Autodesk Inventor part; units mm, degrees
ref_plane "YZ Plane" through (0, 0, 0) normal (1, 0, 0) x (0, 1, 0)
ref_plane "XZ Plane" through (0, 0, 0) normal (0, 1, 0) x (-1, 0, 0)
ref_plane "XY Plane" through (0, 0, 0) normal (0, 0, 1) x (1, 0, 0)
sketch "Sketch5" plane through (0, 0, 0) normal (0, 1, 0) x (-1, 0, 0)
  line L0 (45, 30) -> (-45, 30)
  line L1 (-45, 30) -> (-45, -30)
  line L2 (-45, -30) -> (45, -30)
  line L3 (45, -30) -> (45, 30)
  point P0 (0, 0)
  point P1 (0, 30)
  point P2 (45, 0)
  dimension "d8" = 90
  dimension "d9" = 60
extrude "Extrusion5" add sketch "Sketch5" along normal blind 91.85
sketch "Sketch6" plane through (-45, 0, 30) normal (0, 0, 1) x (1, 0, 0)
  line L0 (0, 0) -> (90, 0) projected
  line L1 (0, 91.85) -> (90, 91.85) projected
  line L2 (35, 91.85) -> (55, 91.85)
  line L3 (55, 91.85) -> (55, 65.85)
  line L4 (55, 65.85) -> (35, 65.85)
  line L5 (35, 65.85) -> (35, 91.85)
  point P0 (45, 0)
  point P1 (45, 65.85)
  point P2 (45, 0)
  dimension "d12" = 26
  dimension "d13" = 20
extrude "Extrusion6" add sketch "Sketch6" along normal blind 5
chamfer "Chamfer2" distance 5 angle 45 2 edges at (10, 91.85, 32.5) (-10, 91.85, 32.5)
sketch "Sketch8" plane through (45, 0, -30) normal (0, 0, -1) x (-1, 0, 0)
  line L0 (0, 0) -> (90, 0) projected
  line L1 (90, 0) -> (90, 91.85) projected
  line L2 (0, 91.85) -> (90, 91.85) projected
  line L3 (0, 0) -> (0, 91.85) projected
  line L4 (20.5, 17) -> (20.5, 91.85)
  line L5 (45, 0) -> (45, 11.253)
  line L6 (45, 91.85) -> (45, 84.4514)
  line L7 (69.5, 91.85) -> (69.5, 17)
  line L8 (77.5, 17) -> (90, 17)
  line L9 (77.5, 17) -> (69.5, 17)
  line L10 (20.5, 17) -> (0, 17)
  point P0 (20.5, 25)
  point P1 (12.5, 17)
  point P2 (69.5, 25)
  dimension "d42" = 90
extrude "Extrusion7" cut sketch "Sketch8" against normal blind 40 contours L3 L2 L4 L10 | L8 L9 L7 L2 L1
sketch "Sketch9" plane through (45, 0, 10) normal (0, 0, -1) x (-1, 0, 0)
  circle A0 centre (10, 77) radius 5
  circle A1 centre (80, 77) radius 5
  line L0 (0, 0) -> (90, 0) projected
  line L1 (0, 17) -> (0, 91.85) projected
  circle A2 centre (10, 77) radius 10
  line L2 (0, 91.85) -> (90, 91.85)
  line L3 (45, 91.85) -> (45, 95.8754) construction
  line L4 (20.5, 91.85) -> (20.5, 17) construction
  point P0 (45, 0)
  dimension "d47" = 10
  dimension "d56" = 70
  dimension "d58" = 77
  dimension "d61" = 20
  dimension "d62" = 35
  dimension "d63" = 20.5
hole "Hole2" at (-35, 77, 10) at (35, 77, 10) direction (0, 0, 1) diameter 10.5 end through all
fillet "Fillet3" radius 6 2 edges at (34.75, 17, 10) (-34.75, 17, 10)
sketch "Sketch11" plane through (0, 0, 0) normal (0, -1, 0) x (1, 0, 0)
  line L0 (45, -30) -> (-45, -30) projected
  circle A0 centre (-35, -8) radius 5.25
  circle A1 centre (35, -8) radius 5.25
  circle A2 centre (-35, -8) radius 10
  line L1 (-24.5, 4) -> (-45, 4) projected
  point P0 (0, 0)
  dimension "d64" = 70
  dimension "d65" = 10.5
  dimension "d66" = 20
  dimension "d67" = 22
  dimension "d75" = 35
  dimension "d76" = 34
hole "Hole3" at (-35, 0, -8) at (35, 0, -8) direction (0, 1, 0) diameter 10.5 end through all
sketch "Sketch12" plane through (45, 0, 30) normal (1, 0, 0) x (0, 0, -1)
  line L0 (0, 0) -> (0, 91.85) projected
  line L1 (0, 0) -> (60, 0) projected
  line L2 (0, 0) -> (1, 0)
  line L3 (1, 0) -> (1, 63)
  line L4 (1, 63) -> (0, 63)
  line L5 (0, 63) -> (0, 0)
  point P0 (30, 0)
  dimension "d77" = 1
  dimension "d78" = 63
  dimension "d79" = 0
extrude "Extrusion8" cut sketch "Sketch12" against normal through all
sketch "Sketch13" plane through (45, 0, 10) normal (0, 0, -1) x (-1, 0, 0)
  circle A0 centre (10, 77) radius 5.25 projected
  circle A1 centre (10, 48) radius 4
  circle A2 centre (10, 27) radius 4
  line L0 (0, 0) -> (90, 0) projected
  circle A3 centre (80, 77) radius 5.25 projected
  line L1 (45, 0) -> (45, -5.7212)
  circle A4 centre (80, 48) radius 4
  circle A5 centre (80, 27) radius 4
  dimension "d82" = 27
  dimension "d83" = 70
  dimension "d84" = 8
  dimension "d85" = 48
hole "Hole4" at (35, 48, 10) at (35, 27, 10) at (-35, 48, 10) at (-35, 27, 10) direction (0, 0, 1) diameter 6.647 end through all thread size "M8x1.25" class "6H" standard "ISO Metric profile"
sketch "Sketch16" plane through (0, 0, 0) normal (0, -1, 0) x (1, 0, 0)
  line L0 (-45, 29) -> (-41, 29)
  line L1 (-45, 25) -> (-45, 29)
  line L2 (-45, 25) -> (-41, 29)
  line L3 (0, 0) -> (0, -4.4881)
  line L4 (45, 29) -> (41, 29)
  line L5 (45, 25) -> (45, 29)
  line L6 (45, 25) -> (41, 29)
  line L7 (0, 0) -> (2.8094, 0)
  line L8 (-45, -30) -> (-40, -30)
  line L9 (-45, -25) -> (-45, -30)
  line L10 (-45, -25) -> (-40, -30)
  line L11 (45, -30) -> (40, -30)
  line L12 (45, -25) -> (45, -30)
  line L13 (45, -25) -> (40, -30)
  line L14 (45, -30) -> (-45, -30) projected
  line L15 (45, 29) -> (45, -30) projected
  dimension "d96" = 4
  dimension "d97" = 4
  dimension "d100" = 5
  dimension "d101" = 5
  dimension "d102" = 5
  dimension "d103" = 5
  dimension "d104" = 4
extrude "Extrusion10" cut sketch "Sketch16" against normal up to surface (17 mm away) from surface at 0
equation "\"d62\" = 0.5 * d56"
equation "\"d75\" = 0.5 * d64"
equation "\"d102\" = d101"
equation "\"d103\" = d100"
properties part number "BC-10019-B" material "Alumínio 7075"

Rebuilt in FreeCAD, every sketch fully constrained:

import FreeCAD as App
import Part
import Sketcher
from FreeCAD import Vector
Q = App.Units.Quantity


def edges_at(feature, points):
    """Names of the edges that pass closest to the given points."""
    edges = feature.Shape.Edges
    near = lambda p: min(range(len(edges)), key=lambda i: edges[i].distToShape(Part.Vertex(*p))[0])
    return sorted({f"Edge{near(p) + 1}" for p in points})

doc = App.newDocument("Part")
body = doc.addObject("PartDesign::Body", "Body")

# Sketch on XZ plane
sketch1 = body.newObject("Sketcher::SketchObject", "Sketch")
sketch1.AttachmentSupport = (doc.getObject("XZ_Plane"), [""])
sketch1.MapMode = "FlatFace"
sketch1.addGeometry([
    Part.LineSegment(Vector(-45, -30, 0), Vector(-45, 30, 0)),
    Part.LineSegment(Vector(-45, 30, 0), Vector(45, 30, 0)),
    Part.LineSegment(Vector(45, 30, 0), Vector(45, -30, 0)),
    Part.LineSegment(Vector(45, -30, 0), Vector(-45, -30, 0)),
], False)
sketch1.addConstraint([
    Sketcher.Constraint("Coincident", 0, 2, 1, 1),
    Sketcher.Constraint("Coincident", 1, 2, 2, 1),
    Sketcher.Constraint("Coincident", 2, 2, 3, 1),
    Sketcher.Constraint("Coincident", 3, 2, 0, 1),
    Sketcher.Constraint("Vertical", 0),
    Sketcher.Constraint("Horizontal", 1),
    Sketcher.Constraint("Vertical", 2),
    Sketcher.Constraint("Horizontal", 3),
    Sketcher.Constraint("Symmetric", 0, 2, 2, 2, -1, 1),
    Sketcher.Constraint("DistanceX", 1, 1, 1, 2, Q("90 mm")),
    Sketcher.Constraint("DistanceY", 0, 1, 0, 2, Q("60 mm")),
])
pad1 = body.newObject("PartDesign::Pad", "Pad")
pad1.Profile = sketch1
pad1.Length = 91.85
pad1.Reversed = True

# Sketch on XY plane
sketch2 = body.newObject("Sketcher::SketchObject", "Sketch001")
sketch2.AttachmentSupport = (doc.getObject("XY_Plane"), [""])
sketch2.MapMode = "FlatFace"
sketch2.AttachmentOffset = App.Placement(Vector(0, 0, 30), App.Rotation())
sketch2.addGeometry([
    Part.LineSegment(Vector(10, 92, 0), Vector(-10, 92, 0)),
    Part.LineSegment(Vector(-10, 92, 0), Vector(-10, 66, 0)),
    Part.LineSegment(Vector(-10, 66, 0), Vector(10, 66, 0)),
    Part.LineSegment(Vector(10, 66, 0), Vector(10, 92, 0)),
], False)
sketch2.addConstraint([
    Sketcher.Constraint("Coincident", 0, 2, 1, 1),
    Sketcher.Constraint("Coincident", 1, 2, 2, 1),
    Sketcher.Constraint("Coincident", 2, 2, 3, 1),
    Sketcher.Constraint("Coincident", 3, 2, 0, 1),
    Sketcher.Constraint("Horizontal", 0),
    Sketcher.Constraint("Vertical", 1),
    Sketcher.Constraint("Horizontal", 2),
    Sketcher.Constraint("Vertical", 3),
    Sketcher.Constraint("DistanceX", 0, 2, 0, 1, Q("20 mm")),
    Sketcher.Constraint("DistanceY", 1, 2, 1, 1, Q("26 mm")),
    Sketcher.Constraint("DistanceX", 0, 2, -1, 1, Q("10 mm")),
    Sketcher.Constraint("DistanceY", -1, 1, 0, 2, Q("91.85 mm")),
])
pad2 = body.newObject("PartDesign::Pad", "Pad001")
pad2.Profile = sketch2
pad2.Length = 5
doc.recompute()

chamfer = body.newObject("PartDesign::Chamfer", "Chamfer")
chamfer.Base = (pad2, edges_at(pad2, [(10, 91.85, 32.5), (-10, 91.85, 32.5)]))
chamfer.Size = 5

# Sketch on XY plane
sketch3 = body.newObject("Sketcher::SketchObject", "Sketch002")
sketch3.AttachmentSupport = (doc.getObject("XY_Plane"), [""])
sketch3.MapMode = "FlatFace"
sketch3.AttachmentOffset = App.Placement(Vector(0, 0, -30), App.Rotation())
sketch3.addGeometry([
    Part.LineSegment(Vector(45, 92, 0), Vector(45, 17, 0)),  # 0
    Part.LineSegment(Vector(45, 17, 0), Vector(24, 17, 0)),  # 1
    Part.LineSegment(Vector(24, 17, 0), Vector(24, 92, 0)),  # 2
    Part.LineSegment(Vector(24, 92, 0), Vector(45, 92, 0)),  # 3
    Part.LineSegment(Vector(-24, 17, 0), Vector(-45, 17, 0)),  # 4
    Part.LineSegment(Vector(-45, 17, 0), Vector(-45, 92, 0)),  # 5
    Part.LineSegment(Vector(-45, 92, 0), Vector(-24, 92, 0)),  # 6
    Part.LineSegment(Vector(-24, 92, 0), Vector(-24, 17, 0)),  # 7
], False)
sketch3.addConstraint([
    Sketcher.Constraint("Coincident", 0, 2, 1, 1),
    Sketcher.Constraint("Coincident", 1, 2, 2, 1),
    Sketcher.Constraint("Coincident", 2, 2, 3, 1),
    Sketcher.Constraint("Coincident", 3, 2, 0, 1),
    Sketcher.Constraint("Coincident", 4, 2, 5, 1),
    Sketcher.Constraint("Coincident", 5, 2, 6, 1),
    Sketcher.Constraint("Coincident", 6, 2, 7, 1),
    Sketcher.Constraint("Coincident", 7, 2, 4, 1),
    Sketcher.Constraint("Vertical", 0),
    Sketcher.Constraint("Horizontal", 1),
    Sketcher.Constraint("Vertical", 2),
    Sketcher.Constraint("Horizontal", 3),
    Sketcher.Constraint("Horizontal", 4),
    Sketcher.Constraint("Vertical", 5),
    Sketcher.Constraint("Horizontal", 6),
    Sketcher.Constraint("Vertical", 7),
    Sketcher.Constraint("Symmetric", 0, 2, 4, 2, -2),
    Sketcher.Constraint("Symmetric", 2, 2, 6, 2, -2),
    Sketcher.Constraint("DistanceX", 4, 2, 0, 2, Q("90 mm")),
    Sketcher.Constraint("DistanceX", 1, 2, 1, 1, Q("20.5 mm")),
    Sketcher.Constraint("DistanceY", -1, 1, 0, 2, Q("17 mm")),
    Sketcher.Constraint("DistanceY", 0, 2, 0, 1, Q("74.85 mm")),
])
pocket1 = body.newObject("PartDesign::Pocket", "Pocket")
pocket1.Profile = sketch3
pocket1.Length = 40
pocket1.Reversed = True

# Sketch on XY plane
sketch4 = body.newObject("Sketcher::SketchObject", "Sketch003")
sketch4.AttachmentSupport = (doc.getObject("XY_Plane"), [""])
sketch4.MapMode = "FlatFace"
sketch4.AttachmentOffset = App.Placement(Vector(0, 0, 10), App.Rotation())
sketch4.addGeometry([
    Part.Circle(Vector(-35, 77, 0), Vector(0, 0, 1), 5),
    Part.Circle(Vector(35, 77, 0), Vector(0, 0, 1), 5),
], False)
sketch4.addConstraint([
    Sketcher.Constraint("Equal", 0, 1),
    Sketcher.Constraint("Symmetric", 0, 3, 1, 3, -2),
    Sketcher.Constraint("Diameter", 0, Q("10.5 mm")),
    Sketcher.Constraint("DistanceX", 0, 3, -1, 1, Q("35 mm")),
    Sketcher.Constraint("DistanceY", -1, 1, 0, 3, Q("77 mm")),
])
doc.recompute()
hole = body.newObject("PartDesign::Hole", "Hole")
hole.Profile = sketch4
hole.ThreadType = "None"
hole.Diameter = 10.5
hole.DepthType = "ThroughAll"
hole.Reversed = True
doc.recompute()

fillet = body.newObject("PartDesign::Fillet", "Fillet")
fillet.Base = (hole, edges_at(hole, [(34.75, 17, 10), (-34.75, 17, 10)]))
fillet.Radius = 6

# Sketch on XZ plane
sketch5 = body.newObject("Sketcher::SketchObject", "Sketch004")
sketch5.AttachmentSupport = (doc.getObject("XZ_Plane"), [""])
sketch5.MapMode = "FlatFace"
sketch5.addGeometry([
    Part.Circle(Vector(-35, -8, 0), Vector(0, 0, 1), 5),
    Part.Circle(Vector(35, -8, 0), Vector(0, 0, 1), 5),
], False)
sketch5.addConstraint([
    Sketcher.Constraint("Equal", 0, 1),
    Sketcher.Constraint("Symmetric", 0, 3, 1, 3, -2),
    Sketcher.Constraint("Diameter", 0, Q("10.5 mm")),
    Sketcher.Constraint("DistanceX", 0, 3, -1, 1, Q("35 mm")),
    Sketcher.Constraint("DistanceY", 0, 3, -1, 1, Q("8 mm")),
])
doc.recompute()
hole2 = body.newObject("PartDesign::Hole", "Hole001")
hole2.Profile = sketch5
hole2.ThreadType = "None"
hole2.Diameter = 10.5
hole2.DepthType = "ThroughAll"

# Sketch on YZ plane
sketch6 = body.newObject("Sketcher::SketchObject", "Sketch005")
sketch6.AttachmentSupport = (doc.getObject("YZ_Plane"), [""])
sketch6.MapMode = "FlatFace"
sketch6.AttachmentOffset = App.Placement(Vector(0, 0, 45), App.Rotation())
sketch6.addGeometry([
    Part.LineSegment(Vector(63, 30, 0), Vector(0, 30, 0)),
    Part.LineSegment(Vector(0, 30, 0), Vector(0, 29, 0)),
    Part.LineSegment(Vector(0, 29, 0), Vector(63, 29, 0)),
    Part.LineSegment(Vector(63, 29, 0), Vector(63, 30, 0)),
], False)
sketch6.addConstraint([
    Sketcher.Constraint("Coincident", 0, 2, 1, 1),
    Sketcher.Constraint("Coincident", 1, 2, 2, 1),
    Sketcher.Constraint("Coincident", 2, 2, 3, 1),
    Sketcher.Constraint("Coincident", 3, 2, 0, 1),
    Sketcher.Constraint("Horizontal", 0),
    Sketcher.Constraint("Vertical", 1),
    Sketcher.Constraint("Horizontal", 2),
    Sketcher.Constraint("Vertical", 3),
    Sketcher.Constraint("PointOnObject", 0, 2, -2),
    Sketcher.Constraint("DistanceX", 0, 2, 0, 1, Q("63 mm")),
    Sketcher.Constraint("DistanceY", 1, 2, 1, 1, Q("1 mm")),
    Sketcher.Constraint("DistanceY", -1, 1, 0, 2, Q("30 mm")),
])
pocket2 = body.newObject("PartDesign::Pocket", "Pocket001")
pocket2.Profile = sketch6
pocket2.Type = "ThroughAll"

# Sketch on XY plane
sketch7 = body.newObject("Sketcher::SketchObject", "Sketch006")
sketch7.AttachmentSupport = (doc.getObject("XY_Plane"), [""])
sketch7.MapMode = "FlatFace"
sketch7.AttachmentOffset = App.Placement(Vector(0, 0, 10), App.Rotation())
sketch7.addGeometry([
    Part.Circle(Vector(35, 48, 0), Vector(0, 0, 1), 3.3),
    Part.Circle(Vector(35, 27, 0), Vector(0, 0, 1), 3.3),
    Part.Circle(Vector(-35, 48, 0), Vector(0, 0, 1), 3.3),
    Part.Circle(Vector(-35, 27, 0), Vector(0, 0, 1), 3.3),
], False)
sketch7.addConstraint([
    Sketcher.Constraint("Equal", 0, 1),
    Sketcher.Constraint("Equal", 1, 2),
    Sketcher.Constraint("Equal", 2, 3),
    Sketcher.Constraint("Symmetric", 0, 3, 2, 3, -2),
    Sketcher.Constraint("Symmetric", 1, 3, 3, 3, -2),
    Sketcher.Constraint("Vertical", 0, 3, 1, 3),
    Sketcher.Constraint("Diameter", 0, Q("6.647 mm")),
    Sketcher.Constraint("DistanceX", -1, 1, 0, 3, Q("35 mm")),
    Sketcher.Constraint("DistanceY", -1, 1, 0, 3, Q("48 mm")),
    Sketcher.Constraint("DistanceY", -1, 1, 1, 3, Q("27 mm")),
])
doc.recompute()
hole3 = body.newObject("PartDesign::Hole", "Hole002")
hole3.Profile = sketch7
hole3.ThreadType = "None"
hole3.Diameter = 6.647
hole3.DepthType = "ThroughAll"
hole3.Reversed = True

# Sketch on XZ plane
sketch8 = body.newObject("Sketcher::SketchObject", "Sketch007")
sketch8.AttachmentSupport = (doc.getObject("XZ_Plane"), [""])
sketch8.MapMode = "FlatFace"
sketch8.addGeometry([
    Part.LineSegment(Vector(-41, 29, 0), Vector(-45, 29, 0)),  # 0
    Part.LineSegment(Vector(-45, 29, 0), Vector(-45, 25, 0)),  # 1
    Part.LineSegment(Vector(-45, 25, 0), Vector(-41, 29, 0)),  # 2
    Part.LineSegment(Vector(45, 25, 0), Vector(45, 29, 0)),  # 3
    Part.LineSegment(Vector(45, 29, 0), Vector(41, 29, 0)),  # 4
    Part.LineSegment(Vector(41, 29, 0), Vector(45, 25, 0)),  # 5
    Part.LineSegment(Vector(-45, -30, 0), Vector(-40, -30, 0)),  # 6
    Part.LineSegment(Vector(-40, -30, 0), Vector(-45, -25, 0)),  # 7
    Part.LineSegment(Vector(-45, -25, 0), Vector(-45, -30, 0)),  # 8
    Part.LineSegment(Vector(45, -30, 0), Vector(45, -25, 0)),  # 9
    Part.LineSegment(Vector(45, -25, 0), Vector(40, -30, 0)),  # 10
    Part.LineSegment(Vector(40, -30, 0), Vector(45, -30, 0)),  # 11
], False)
sketch8.addConstraint([
    Sketcher.Constraint("Coincident", 0, 2, 1, 1),
    Sketcher.Constraint("Coincident", 1, 2, 2, 1),
    Sketcher.Constraint("Coincident", 2, 2, 0, 1),
    Sketcher.Constraint("Coincident", 3, 2, 4, 1),
    Sketcher.Constraint("Coincident", 4, 2, 5, 1),
    Sketcher.Constraint("Coincident", 5, 2, 3, 1),
    Sketcher.Constraint("Coincident", 6, 2, 7, 1),
    Sketcher.Constraint("Coincident", 7, 2, 8, 1),
    Sketcher.Constraint("Coincident", 8, 2, 6, 1),
    Sketcher.Constraint("Coincident", 9, 2, 10, 1),
    Sketcher.Constraint("Coincident", 10, 2, 11, 1),
    Sketcher.Constraint("Coincident", 11, 2, 9, 1),
    Sketcher.Constraint("Horizontal", 0),
    Sketcher.Constraint("Vertical", 1),
    Sketcher.Constraint("Vertical", 3),
    Sketcher.Constraint("Horizontal", 4),
    Sketcher.Constraint("Horizontal", 6),
    Sketcher.Constraint("Vertical", 8),
    Sketcher.Constraint("Vertical", 9),
    Sketcher.Constraint("Horizontal", 11),
    Sketcher.Constraint("Symmetric", 5, 2, 7, 2, -1, 1),
    Sketcher.Constraint("Symmetric", 1, 2, 9, 2, -1, 1),
    Sketcher.Constraint("Symmetric", 0, 2, 3, 2, -2),
    Sketcher.Constraint("Symmetric", 6, 2, 10, 2, -2),
    Sketcher.Constraint("Perpendicular", 2, 5),
    Sketcher.Constraint("Parallel", 5, 7),
    Sketcher.Constraint("Perpendicular", 7, 10),
    Sketcher.Constraint("Horizontal", 1, 2, 5, 2),
    Sketcher.Constraint("DistanceX", 0, 2, 0, 1, Q("4 mm")),
    Sketcher.Constraint("DistanceX", 6, 1, 6, 2, Q("5 mm")),
    Sketcher.Constraint("DistanceX", 0, 2, -1, 1, Q("45 mm")),
    Sketcher.Constraint("DistanceY", -1, 1, 0, 2, Q("29 mm")),
])
pocket3 = body.newObject("PartDesign::Pocket", "Pocket002")
pocket3.Profile = sketch8
pocket3.Length = 17

doc.recompute()
